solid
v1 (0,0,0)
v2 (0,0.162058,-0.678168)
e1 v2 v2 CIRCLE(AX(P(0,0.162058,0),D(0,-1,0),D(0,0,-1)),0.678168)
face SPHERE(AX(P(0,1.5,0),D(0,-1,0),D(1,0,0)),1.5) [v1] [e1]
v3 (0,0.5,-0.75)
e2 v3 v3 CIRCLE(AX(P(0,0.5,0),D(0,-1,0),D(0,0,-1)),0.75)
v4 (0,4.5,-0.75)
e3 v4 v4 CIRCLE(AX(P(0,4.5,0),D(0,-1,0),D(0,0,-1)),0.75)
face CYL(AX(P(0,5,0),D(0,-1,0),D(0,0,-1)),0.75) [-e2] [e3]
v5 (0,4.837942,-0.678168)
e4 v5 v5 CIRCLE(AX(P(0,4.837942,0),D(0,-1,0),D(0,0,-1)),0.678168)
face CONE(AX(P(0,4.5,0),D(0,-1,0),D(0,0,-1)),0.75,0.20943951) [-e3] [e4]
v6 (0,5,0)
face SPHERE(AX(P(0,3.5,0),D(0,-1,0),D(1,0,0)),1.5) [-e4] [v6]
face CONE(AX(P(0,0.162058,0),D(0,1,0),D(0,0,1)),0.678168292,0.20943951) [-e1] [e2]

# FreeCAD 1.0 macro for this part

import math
import FreeCAD as App
import Part
import Sketcher

V = App.Vector
Q = App.Units.Quantity

doc = App.newDocument("Part")
params = doc.addObject("Spreadsheet::Sheet", "Params")
for row, (alias, value) in enumerate([
    ("sketch1_diameter", "1.5 mm"),
    ("pad1_length", "5 mm"),
    ("sketch2_radius", "1.5 mm"),
    ("sketch2_height", "0.1 mm"),
    ("sketch2_width", "0.75 mm"),
    ("groove_angle", "360 deg"),
    ("sketch3_radius", "1.5 mm"),
    ("groove2_angle", "360 deg"),
], start=1):
    params.set(f"A{row}", alias)
    params.set(f"B{row}", "=" + value)
    params.setAlias(f"B{row}", alias)

body = doc.addObject("PartDesign::Body", "Body")

sketch1 = body.newObject("Sketcher::SketchObject", "Sketch")
sketch1.AttachmentSupport = (doc.getObject("XZ_Plane"), [""])
sketch1.MapMode = "FlatFace"
sketch1.addGeometry(Part.Circle(V(0, 0, 0), V(0, 0, 1), 0.75), False)
sketch1.addConstraint([
    Sketcher.Constraint("Coincident", 0, 3, -1, 1),
    Sketcher.Constraint("Diameter", 0, 1.5),
])
sketch1.setExpression("Constraints[1]", "Params.sketch1_diameter")
pad1 = body.newObject("PartDesign::Pad", "Pad")
pad1.Profile = sketch1
pad1.setExpression("Length", "Params.pad1_length")
pad1.Reversed = True

sketch2 = body.newObject("Sketcher::SketchObject", "Sketch001")
sketch2.AttachmentSupport = (doc.getObject("XY_Plane"), [""])
sketch2.MapMode = "FlatFace"
sketch2.addGeometry([
    Part.LineSegment(V(0.75, 4.799038, 0), V(0.75, 5.1, 0)),
    Part.LineSegment(V(0.75, 5.1, 0), V(0, 5.1, 0)),
    Part.LineSegment(V(0, 5.1, 0), V(0, 5, 0)),
    Part.ArcOfCircle(Part.Circle(V(0, 3.5, 0), V(0, 0, 1), 1.5), math.radians(60), math.radians(90)),
    Part.LineSegment(V(0, -0.1, 0), V(0.75, -0.1, 0)),
    Part.LineSegment(V(0.75, -0.1, 0), V(0.75, 0.200962, 0)),
    Part.ArcOfCircle(Part.Circle(V(0, 1.5, 0), V(0, 0, 1), 1.5), math.radians(-90), math.radians(-60)),
    Part.LineSegment(V(0, 0, 0), V(0, -0.1, 0)),
], False)
sketch2.addConstraint([
    Sketcher.Constraint("Coincident", 0, 2, 1, 1),
    Sketcher.Constraint("Coincident", 1, 2, 2, 1),
    Sketcher.Constraint("Coincident", 2, 2, 3, 2),
    Sketcher.Constraint("Coincident", 3, 1, 0, 1),
    Sketcher.Constraint("Coincident", 4, 2, 5, 1),
    Sketcher.Constraint("Coincident", 5, 2, 6, 2),
    Sketcher.Constraint("Coincident", 6, 1, 7, 1),
    Sketcher.Constraint("Coincident", 7, 2, 4, 1),
    Sketcher.Constraint("Vertical", 0),
    Sketcher.Constraint("Horizontal", 1),
    Sketcher.Constraint("Vertical", 2),
    Sketcher.Constraint("Horizontal", 4),
    Sketcher.Constraint("Vertical", 5),
    Sketcher.Constraint("Vertical", 7),
    Sketcher.Constraint("Coincident", 6, 1, -1, 1),
    Sketcher.Constraint("Equal", 3, 6),
    Sketcher.Constraint("PointOnObject", 3, 3, -2),
    Sketcher.Constraint("PointOnObject", 6, 3, -2),
    Sketcher.Constraint("PointOnObject", 1, 2, -2),
    Sketcher.Constraint("Vertical", 3, 1, 4, 2),
    Sketcher.Constraint("Equal", 0, 5),
    Sketcher.Constraint("Radius", 3, 1.5),
    Sketcher.Constraint("DistanceY", 2, 2, 2, 1, 0.1),
    Sketcher.Constraint("DistanceY", -1, 1, 2, 2, 5.0),
    Sketcher.Constraint("DistanceX", 1, 2, 1, 1, 0.75),
])
sketch2.setExpression("Constraints[21]", "Params.sketch2_radius")
sketch2.setExpression("Constraints[22]", "Params.sketch2_height")
sketch2.setExpression("Constraints[24]", "Params.sketch2_width")
groove = body.newObject("PartDesign::Groove", "Groove")
groove.Profile = sketch2
groove.ReferenceAxis = (sketch2, ["V_Axis"])
groove.setExpression("Angle", "Params.groove_angle")

sketch3 = body.newObject("Sketcher::SketchObject", "Sketch002")
sketch3.AttachmentSupport = (doc.getObject("XY_Plane"), [""])
sketch3.MapMode = "FlatFace"
sketch3.addGeometry([
    Part.LineSegment(V(-0.75, 4.5, 0), V(-0.678168, 4.837942, 0)),
    Part.ArcOfCircle(Part.Circle(V(0, 3.5, 0), V(0, 0, 1), 1.5), math.radians(116.879281), math.radians(120)),
    Part.LineSegment(V(-0.75, 4.799038, 0), V(-0.75, 4.5, 0)),
    Part.LineSegment(V(-0.75, 0.5, 0), V(-0.75, 0.200962, 0)),
    Part.ArcOfCircle(Part.Circle(V(0, 1.5, 0), V(0, 0, 1), 1.5), math.radians(-120), math.radians(-116.879281)),
    Part.LineSegment(V(-0.678168, 0.162058, 0), V(-0.75, 0.5, 0)),
], False)
sketch3.addConstraint([
    Sketcher.Constraint("Coincident", 0, 2, 1, 1),
    Sketcher.Constraint("Coincident", 1, 2, 2, 1),
    Sketcher.Constraint("Coincident", 2, 2, 0, 1),
    Sketcher.Constraint("Coincident", 3, 2, 4, 1),
    Sketcher.Constraint("Coincident", 4, 2, 5, 1),
    Sketcher.Constraint("Coincident", 5, 2, 3, 1),
    Sketcher.Constraint("Vertical", 2),
    Sketcher.Constraint("Vertical", 3),
    Sketcher.Constraint("Equal", 1, 4),
    Sketcher.Constraint("PointOnObject", 1, 3, -2),
    Sketcher.Constraint("PointOnObject", 4, 3, -2),
    Sketcher.Constraint("Vertical", 2, 2, 3, 2),
    Sketcher.Constraint("Vertical", 0, 2, 4, 2),
    Sketcher.Constraint("Equal", 2, 3),
    Sketcher.Constraint("Radius", 1, 1.5),
    Sketcher.Constraint("Angle", 0, Q("78 deg")),
    Sketcher.Constraint("DistanceY", 4, 3, 1, 3, 2.0),
    Sketcher.Constraint("DistanceY", 1, 3, 2, 2, 1.0),
    Sketcher.Constraint("DistanceY", -1, 1, 1, 3, 3.5),
    Sketcher.Constraint("DistanceX", 1, 2, -1, 1, 0.75),
])
sketch3.setExpression("Constraints[14]", "Params.sketch3_radius")
groove2 = body.newObject("PartDesign::Groove", "Groove001")
groove2.Profile = sketch3
groove2.ReferenceAxis = (sketch3, ["V_Axis"])
groove2.setExpression("Angle", "Params.groove2_angle")

doc.recompute()
